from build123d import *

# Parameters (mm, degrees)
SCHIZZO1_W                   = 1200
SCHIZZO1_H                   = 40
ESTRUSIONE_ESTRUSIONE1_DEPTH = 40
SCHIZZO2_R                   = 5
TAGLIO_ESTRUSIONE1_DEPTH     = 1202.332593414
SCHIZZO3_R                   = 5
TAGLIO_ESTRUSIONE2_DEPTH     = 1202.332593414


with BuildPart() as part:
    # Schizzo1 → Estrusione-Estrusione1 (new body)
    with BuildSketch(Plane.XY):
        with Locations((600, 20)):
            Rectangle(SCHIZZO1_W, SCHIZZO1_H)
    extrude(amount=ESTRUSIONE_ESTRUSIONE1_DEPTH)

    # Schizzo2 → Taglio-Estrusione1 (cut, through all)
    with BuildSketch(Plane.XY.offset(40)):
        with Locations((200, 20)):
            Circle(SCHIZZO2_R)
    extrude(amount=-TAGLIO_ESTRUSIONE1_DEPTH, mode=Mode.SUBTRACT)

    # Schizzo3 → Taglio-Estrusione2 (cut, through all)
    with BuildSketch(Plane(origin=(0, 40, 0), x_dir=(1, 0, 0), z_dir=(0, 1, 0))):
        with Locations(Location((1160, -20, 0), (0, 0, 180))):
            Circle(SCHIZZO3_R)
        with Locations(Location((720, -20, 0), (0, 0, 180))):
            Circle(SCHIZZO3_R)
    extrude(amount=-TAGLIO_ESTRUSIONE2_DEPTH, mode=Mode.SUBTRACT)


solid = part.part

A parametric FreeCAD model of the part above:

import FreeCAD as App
import Part
import Sketcher

doc = App.newDocument("Part")
body = doc.addObject("PartDesign::Body", "Body")

sketch1 = body.newObject("Sketcher::SketchObject", "Sketch")
sketch1.AttachmentSupport = (doc.getObject("XY_Plane"), [""])
sketch1.MapMode = "FlatFace"
sketch1.addGeometry([
    Part.LineSegment(App.Vector(0, 40, 0), App.Vector(0, 0, 0)),
    Part.LineSegment(App.Vector(0, 0, 0), App.Vector(1200, 0, 0)),
    Part.LineSegment(App.Vector(1200, 0, 0), App.Vector(1200, 40, 0)),
    Part.LineSegment(App.Vector(1200, 40, 0), App.Vector(0, 40, 0)),
], False)
sketch1.addConstraint([
    Sketcher.Constraint("Coincident", 0, 2, 1, 1),
    Sketcher.Constraint("Coincident", 1, 2, 2, 1),
    Sketcher.Constraint("Coincident", 2, 2, 3, 1),
    Sketcher.Constraint("Coincident", 3, 2, 0, 1),
    Sketcher.Constraint("Vertical", 0),
    Sketcher.Constraint("Horizontal", 1),
    Sketcher.Constraint("Vertical", 2),
    Sketcher.Constraint("Horizontal", 3),
    Sketcher.Constraint("Coincident", 0, 2, -1, 1),
    Sketcher.Constraint("DistanceX", 1, 1, 1, 2, 1200.0),
    Sketcher.Constraint("DistanceY", 0, 2, 0, 1, 40.0),
])
pad1 = body.newObject("PartDesign::Pad", "Pad")
pad1.Profile = sketch1
pad1.Length = 40

sketch2 = body.newObject("Sketcher::SketchObject", "Sketch001")
sketch2.AttachmentSupport = (doc.getObject("XY_Plane"), [""])
sketch2.MapMode = "FlatFace"
sketch2.AttachmentOffset = App.Placement(App.Vector(0, 0, 40), App.Rotation())
sketch2.addGeometry(Part.Circle(App.Vector(200, 20, 0), App.Vector(0, 0, 1), 5), False)
sketch2.addConstraint([
    Sketcher.Constraint("Diameter", 0, 10.0),
    Sketcher.Constraint("DistanceX", -1, 1, 0, 3, 200.0),
    Sketcher.Constraint("DistanceY", -1, 1, 0, 3, 20.0),
])
pocket1 = body.newObject("PartDesign::Pocket", "Pocket")
pocket1.Profile = sketch2
pocket1.Type = "ThroughAll"

sketch3 = body.newObject("Sketcher::SketchObject", "Sketch002")
sketch3.AttachmentSupport = (doc.getObject("XZ_Plane"), [""])
sketch3.MapMode = "FlatFace"
sketch3.AttachmentOffset = App.Placement(App.Vector(0, 0, -40), App.Rotation())
sketch3.addGeometry([
    Part.Circle(App.Vector(1160, 20, 0), App.Vector(0, 0, 1), 5),
    Part.Circle(App.Vector(720, 20, 0), App.Vector(0, 0, 1), 5),
], False)
sketch3.addConstraint([
    Sketcher.Constraint("Equal", 0, 1),
    Sketcher.Constraint("Horizontal", 0, 3, 1, 3),
    Sketcher.Constraint("Diameter", 0, 10.0),
    Sketcher.Constraint("DistanceX", -1, 1, 0, 3, 1160.0),
    Sketcher.Constraint("DistanceY", -1, 1, 0, 3, 20.0),
    Sketcher.Constraint("DistanceX", -1, 1, 1, 3, 720.0),
])
pocket2 = body.newObject("PartDesign::Pocket", "Pocket001")
pocket2.Profile = sketch3
pocket2.Type = "ThroughAll"
pocket2.Reversed = True

doc.recompute()
